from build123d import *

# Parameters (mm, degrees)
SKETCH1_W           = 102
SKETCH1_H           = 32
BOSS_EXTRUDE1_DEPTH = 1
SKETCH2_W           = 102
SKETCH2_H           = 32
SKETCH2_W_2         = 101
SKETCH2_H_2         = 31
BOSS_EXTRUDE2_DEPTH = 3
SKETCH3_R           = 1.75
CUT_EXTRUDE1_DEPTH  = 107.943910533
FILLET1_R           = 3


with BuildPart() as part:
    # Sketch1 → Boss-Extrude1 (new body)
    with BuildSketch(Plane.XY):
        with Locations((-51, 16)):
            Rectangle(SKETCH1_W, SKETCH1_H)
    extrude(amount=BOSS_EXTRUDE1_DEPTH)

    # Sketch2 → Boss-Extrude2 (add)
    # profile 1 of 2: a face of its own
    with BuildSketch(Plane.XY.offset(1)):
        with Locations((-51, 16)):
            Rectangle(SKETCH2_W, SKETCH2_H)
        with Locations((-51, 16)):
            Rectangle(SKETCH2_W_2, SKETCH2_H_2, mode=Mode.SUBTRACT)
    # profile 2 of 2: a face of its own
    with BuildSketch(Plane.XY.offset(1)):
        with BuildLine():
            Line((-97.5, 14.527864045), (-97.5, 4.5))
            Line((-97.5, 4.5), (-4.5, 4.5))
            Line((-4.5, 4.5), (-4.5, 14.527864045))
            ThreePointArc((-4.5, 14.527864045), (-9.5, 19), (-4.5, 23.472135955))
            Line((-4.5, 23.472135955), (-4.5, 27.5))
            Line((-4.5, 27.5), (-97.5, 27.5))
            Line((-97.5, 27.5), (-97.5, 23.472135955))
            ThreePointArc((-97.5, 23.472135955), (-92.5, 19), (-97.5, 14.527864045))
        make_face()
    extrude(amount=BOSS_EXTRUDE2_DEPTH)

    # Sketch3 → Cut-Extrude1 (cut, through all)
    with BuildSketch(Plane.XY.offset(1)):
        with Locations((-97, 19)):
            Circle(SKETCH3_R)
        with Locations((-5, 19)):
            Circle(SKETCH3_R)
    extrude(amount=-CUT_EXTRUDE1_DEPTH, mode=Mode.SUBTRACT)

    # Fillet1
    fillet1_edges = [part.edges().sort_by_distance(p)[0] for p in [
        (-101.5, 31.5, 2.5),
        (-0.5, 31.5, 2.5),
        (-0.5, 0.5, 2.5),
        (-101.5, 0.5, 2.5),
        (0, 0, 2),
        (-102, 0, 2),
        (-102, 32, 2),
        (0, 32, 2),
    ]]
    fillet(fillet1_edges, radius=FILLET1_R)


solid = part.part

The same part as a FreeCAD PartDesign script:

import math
import FreeCAD as App
import Part
import Sketcher


def edges_at(feature, points):
    """Names of the edges that pass closest to the given points."""
    edges = feature.Shape.Edges
    near = lambda p: min(range(len(edges)), key=lambda i: edges[i].distToShape(Part.Vertex(*p))[0])
    return sorted({f"Edge{near(p) + 1}" for p in points})


def add_polygon(sketch, points):
    """Adds a closed chain of lines whose ends are joined by coincident constraints."""
    first, n = sketch.GeometryCount, len(points)
    for a, b in zip(points, points[1:] + points[:1]):
        sketch.addGeometry(Part.LineSegment(App.Vector(*a, 0), App.Vector(*b, 0)), False)
    for i in range(n):
        sketch.addConstraint(Sketcher.Constraint("Coincident", first + i, 2, first + (i + 1) % n, 1))

doc = App.newDocument("Part")
body = doc.addObject("PartDesign::Body", "Body")

sketch1 = body.newObject("Sketcher::SketchObject", "Sketch")
sketch1.AttachmentSupport = (doc.getObject("XY_Plane"), [""])
sketch1.MapMode = "FlatFace"
add_polygon(sketch1, [(-102, 32), (-102, 0), (0, 0), (0, 32)])
sketch1.addConstraint([
    Sketcher.Constraint("Vertical", 0),
    Sketcher.Constraint("Horizontal", 1),
    Sketcher.Constraint("Vertical", 2),
    Sketcher.Constraint("Horizontal", 3),
    Sketcher.Constraint("Coincident", 1, 2, -1, 1),
    Sketcher.Constraint("DistanceX", 1, 1, 1, 2, 102.0),
    Sketcher.Constraint("DistanceY", 0, 2, 0, 1, 32.0),
])
pad1 = body.newObject("PartDesign::Pad", "Pad")
pad1.Profile = sketch1
pad1.Length = 1

sketch2 = body.newObject("Sketcher::SketchObject", "Sketch001")
sketch2.AttachmentSupport = (doc.getObject("XY_Plane"), [""])
sketch2.MapMode = "FlatFace"
sketch2.AttachmentOffset = App.Placement(App.Vector(0, 0, 1), App.Rotation())
add_polygon(sketch2, [(-102, 32), (-102, 0), (0, 0), (0, 32)])
add_polygon(sketch2, [(-0.5, 0.5), (-101.5, 0.5), (-101.5, 31.5), (-0.5, 31.5)])
sketch2.addGeometry(Part.LineSegment(App.Vector(-97.5, 14.5, 0), App.Vector(-97.5, 4.5, 0)), False)
sketch2.addGeometry(Part.LineSegment(App.Vector(-97.5, 4.5, 0), App.Vector(-4.5, 4.5, 0)), False)
sketch2.addGeometry(Part.LineSegment(App.Vector(-4.5, 4.5, 0), App.Vector(-4.5, 14.5, 0)), False)
sketch2.addGeometry(Part.ArcOfCircle(Part.Circle(App.Vector(-5, 19, 0), App.Vector(0, 0, 1), 4.5), math.radians(84), math.radians(276)), False)
sketch2.addGeometry(Part.LineSegment(App.Vector(-4.5, 23.5, 0), App.Vector(-4.5, 27.5, 0)), False)
sketch2.addGeometry(Part.LineSegment(App.Vector(-4.5, 27.5, 0), App.Vector(-97.5, 27.5, 0)), False)
sketch2.addGeometry(Part.LineSegment(App.Vector(-97.5, 27.5, 0), App.Vector(-97.5, 23.5, 0)), False)
sketch2.addGeometry(Part.ArcOfCircle(Part.Circle(App.Vector(-97, 19, 0), App.Vector(0, 0, 1), 4.5), math.radians(-96), math.radians(96)), False)
sketch2.addConstraint([
    Sketcher.Constraint("Coincident", 8, 2, 9, 1),
    Sketcher.Constraint("Coincident", 9, 2, 10, 1),
    Sketcher.Constraint("Coincident", 10, 2, 11, 2),
    Sketcher.Constraint("Coincident", 11, 1, 12, 1),
    Sketcher.Constraint("Coincident", 12, 2, 13, 1),
    Sketcher.Constraint("Coincident", 13, 2, 14, 1),
    Sketcher.Constraint("Coincident", 14, 2, 15, 2),
    Sketcher.Constraint("Coincident", 15, 1, 8, 1),
    Sketcher.Constraint("Vertical", 0),
    Sketcher.Constraint("Horizontal", 1),
    Sketcher.Constraint("Vertical", 2),
    Sketcher.Constraint("Horizontal", 3),
    Sketcher.Constraint("Horizontal", 4),
    Sketcher.Constraint("Vertical", 5),
    Sketcher.Constraint("Horizontal", 6),
    Sketcher.Constraint("Vertical", 7),
    Sketcher.Constraint("Vertical", 8),
    Sketcher.Constraint("Horizontal", 9),
    Sketcher.Constraint("Vertical", 10),
    Sketcher.Constraint("Vertical", 12),
    Sketcher.Constraint("Horizontal", 13),
    Sketcher.Constraint("Vertical", 14),
    Sketcher.Constraint("Coincident", 1, 2, -1, 1),
    Sketcher.Constraint("Equal", 11, 15),
    Sketcher.Constraint("Horizontal", 11, 3, 15, 3),
    Sketcher.Constraint("Horizontal", 11, 1, 14, 2),
    Sketcher.Constraint("Horizontal", 10, 2, 15, 1),
    Sketcher.Constraint("Vertical", 10, 2, 11, 1),
    Sketcher.Constraint("Radius", 11, 4.5),
    Sketcher.Constraint("DistanceX", 1, 1, 1, 2, 102.0),
    Sketcher.Constraint("DistanceX", 4, 2, 4, 1, 101.0),
    Sketcher.Constraint("DistanceX", 9, 1, 9, 2, 93.0),
    Sketcher.Constraint("DistanceY", 0, 2, 0, 1, 32.0),
    Sketcher.Constraint("DistanceY", 5, 1, 5, 2, 31.0),
    Sketcher.Constraint("DistanceX", 11, 3, -1, 1, 5.0),
    Sketcher.Constraint("DistanceY", -1, 1, 11, 3, 19.0),
    Sketcher.Constraint("DistanceX", 15, 3, -1, 1, 97.0),
    Sketcher.Constraint("DistanceX", 4, 2, 8, 2, 4.0),
    Sketcher.Constraint("DistanceY", 4, 2, 8, 2, 4.0),
    Sketcher.Constraint("DistanceY", 12, 2, 6, 2, 4.0),
    Sketcher.Constraint("DistanceY", -1, 1, 4, 2, 0.5),
])
pad2 = body.newObject("PartDesign::Pad", "Pad001")
pad2.Profile = sketch2
pad2.Length = 3

sketch3 = body.newObject("Sketcher::SketchObject", "Sketch002")
sketch3.AttachmentSupport = (doc.getObject("XY_Plane"), [""])
sketch3.MapMode = "FlatFace"
sketch3.AttachmentOffset = App.Placement(App.Vector(0, 0, 1), App.Rotation())
sketch3.addGeometry([
    Part.Circle(App.Vector(-97, 19, 0), App.Vector(0, 0, 1), 1.8),
    Part.Circle(App.Vector(-5, 19, 0), App.Vector(0, 0, 1), 1.8),
], False)
sketch3.addConstraint([
    Sketcher.Constraint("Equal", 0, 1),
    Sketcher.Constraint("Horizontal", 0, 3, 1, 3),
    Sketcher.Constraint("Diameter", 0, 3.5),
    Sketcher.Constraint("DistanceX", 0, 3, -1, 1, 97.0),
    Sketcher.Constraint("DistanceY", -1, 1, 0, 3, 19.0),
    Sketcher.Constraint("DistanceX", 1, 3, -1, 1, 5.0),
])
pocket1 = body.newObject("PartDesign::Pocket", "Pocket")
pocket1.Profile = sketch3
pocket1.Type = "ThroughAll"
doc.recompute()

fillet = body.newObject("PartDesign::Fillet", "Fillet")
fillet.Base = (pocket1, edges_at(pocket1, [
    (-101.5, 31.5, 2.5),
    (-0.5, 31.5, 2.5),
    (-0.5, 0.5, 2.5),
    (-101.5, 0.5, 2.5),
    (0, 0, 2),
    (-102, 0, 2),
    (-102, 32, 2),
    (0, 32, 2),
]))
fillet.Radius = 3

doc.recompute()
